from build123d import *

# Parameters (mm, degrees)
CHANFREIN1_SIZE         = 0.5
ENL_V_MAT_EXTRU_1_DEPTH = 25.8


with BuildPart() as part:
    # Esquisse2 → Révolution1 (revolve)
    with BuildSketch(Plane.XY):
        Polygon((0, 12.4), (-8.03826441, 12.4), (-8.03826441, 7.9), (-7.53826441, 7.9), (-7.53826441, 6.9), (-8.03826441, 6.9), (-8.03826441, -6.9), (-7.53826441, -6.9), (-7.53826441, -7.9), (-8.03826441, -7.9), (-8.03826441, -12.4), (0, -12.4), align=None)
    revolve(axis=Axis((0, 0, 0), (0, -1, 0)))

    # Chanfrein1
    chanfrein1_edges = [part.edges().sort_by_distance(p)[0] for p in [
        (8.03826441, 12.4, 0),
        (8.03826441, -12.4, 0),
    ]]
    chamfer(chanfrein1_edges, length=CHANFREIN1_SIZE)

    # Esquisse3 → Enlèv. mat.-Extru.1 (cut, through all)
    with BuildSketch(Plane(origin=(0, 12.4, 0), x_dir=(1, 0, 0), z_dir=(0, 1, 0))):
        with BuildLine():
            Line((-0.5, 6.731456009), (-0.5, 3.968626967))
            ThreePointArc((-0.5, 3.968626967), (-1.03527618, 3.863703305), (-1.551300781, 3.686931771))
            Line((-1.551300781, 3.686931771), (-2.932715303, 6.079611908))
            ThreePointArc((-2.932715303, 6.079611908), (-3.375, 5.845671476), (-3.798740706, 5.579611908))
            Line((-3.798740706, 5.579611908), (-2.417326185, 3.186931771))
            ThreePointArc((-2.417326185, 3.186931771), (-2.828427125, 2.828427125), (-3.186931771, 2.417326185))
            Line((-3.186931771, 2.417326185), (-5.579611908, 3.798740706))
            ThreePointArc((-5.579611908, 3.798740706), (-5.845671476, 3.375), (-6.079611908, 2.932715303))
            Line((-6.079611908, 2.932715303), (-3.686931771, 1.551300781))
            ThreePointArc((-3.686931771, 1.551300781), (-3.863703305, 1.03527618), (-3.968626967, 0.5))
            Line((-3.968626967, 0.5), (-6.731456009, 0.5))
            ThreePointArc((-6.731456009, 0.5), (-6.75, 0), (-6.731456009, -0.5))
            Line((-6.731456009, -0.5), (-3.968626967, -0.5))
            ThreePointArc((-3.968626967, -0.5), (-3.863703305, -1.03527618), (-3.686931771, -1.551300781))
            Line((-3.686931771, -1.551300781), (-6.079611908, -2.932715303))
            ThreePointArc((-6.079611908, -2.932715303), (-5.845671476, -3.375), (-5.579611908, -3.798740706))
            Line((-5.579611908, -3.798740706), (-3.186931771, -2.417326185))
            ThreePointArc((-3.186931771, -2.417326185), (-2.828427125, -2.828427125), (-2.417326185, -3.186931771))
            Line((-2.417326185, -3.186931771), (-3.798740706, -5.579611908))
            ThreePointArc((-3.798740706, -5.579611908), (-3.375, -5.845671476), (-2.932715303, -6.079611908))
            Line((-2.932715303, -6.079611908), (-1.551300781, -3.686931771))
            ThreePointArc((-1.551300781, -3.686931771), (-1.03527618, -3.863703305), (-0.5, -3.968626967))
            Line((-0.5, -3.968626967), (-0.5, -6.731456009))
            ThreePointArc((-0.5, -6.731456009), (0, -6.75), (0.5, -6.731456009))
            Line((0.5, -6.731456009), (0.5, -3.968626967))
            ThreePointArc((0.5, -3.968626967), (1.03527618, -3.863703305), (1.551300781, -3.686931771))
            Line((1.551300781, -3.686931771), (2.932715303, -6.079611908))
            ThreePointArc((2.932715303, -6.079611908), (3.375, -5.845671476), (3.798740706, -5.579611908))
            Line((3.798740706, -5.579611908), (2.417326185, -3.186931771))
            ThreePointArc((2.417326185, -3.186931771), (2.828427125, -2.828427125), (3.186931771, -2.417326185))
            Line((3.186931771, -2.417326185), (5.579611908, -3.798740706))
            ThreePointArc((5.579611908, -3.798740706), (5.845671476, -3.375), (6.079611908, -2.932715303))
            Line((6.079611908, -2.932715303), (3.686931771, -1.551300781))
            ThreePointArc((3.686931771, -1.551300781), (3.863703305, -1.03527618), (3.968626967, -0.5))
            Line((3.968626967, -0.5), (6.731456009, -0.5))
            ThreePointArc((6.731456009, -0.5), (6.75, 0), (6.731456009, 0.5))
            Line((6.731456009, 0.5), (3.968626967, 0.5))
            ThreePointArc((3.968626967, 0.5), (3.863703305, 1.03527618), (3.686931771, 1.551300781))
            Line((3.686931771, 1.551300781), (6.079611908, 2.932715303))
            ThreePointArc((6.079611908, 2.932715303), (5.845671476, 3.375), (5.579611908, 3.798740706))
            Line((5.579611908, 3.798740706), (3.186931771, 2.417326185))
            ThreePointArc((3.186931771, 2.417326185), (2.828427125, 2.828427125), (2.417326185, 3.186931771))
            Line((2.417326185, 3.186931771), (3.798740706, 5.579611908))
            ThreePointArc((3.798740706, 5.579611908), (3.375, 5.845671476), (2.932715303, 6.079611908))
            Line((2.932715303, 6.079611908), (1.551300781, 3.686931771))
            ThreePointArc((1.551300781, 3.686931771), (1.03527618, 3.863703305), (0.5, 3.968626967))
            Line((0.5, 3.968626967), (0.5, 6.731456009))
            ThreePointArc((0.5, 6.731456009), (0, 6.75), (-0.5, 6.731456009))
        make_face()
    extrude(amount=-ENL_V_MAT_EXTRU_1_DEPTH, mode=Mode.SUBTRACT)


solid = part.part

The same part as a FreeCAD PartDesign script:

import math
import FreeCAD as App
import Part
import Sketcher
from FreeCAD import Vector
Q = App.Units.Quantity


def edges_at(feature, points):
    """Names of the edges that pass closest to the given points."""
    edges = feature.Shape.Edges
    near = lambda p: min(range(len(edges)), key=lambda i: edges[i].distToShape(Part.Vertex(*p))[0])
    return sorted({f"Edge{near(p) + 1}" for p in points})

doc = App.newDocument("Part")
body = doc.addObject("PartDesign::Body", "Body")

sketch1 = body.newObject("Sketcher::SketchObject", "Sketch")
sketch1.AttachmentSupport = (doc.getObject("XY_Plane"), [""])
sketch1.MapMode = "FlatFace"
sketch1.addGeometry([
    Part.LineSegment(Vector(0, 12.4, 0), Vector(-8, 12.4, 0)),
    Part.LineSegment(Vector(-8, 12.4, 0), Vector(-8, 7.9, 0)),
    Part.LineSegment(Vector(-8, 7.9, 0), Vector(-7.5, 7.9, 0)),
    Part.LineSegment(Vector(-7.5, 7.9, 0), Vector(-7.5, 6.9, 0)),
    Part.LineSegment(Vector(-7.5, 6.9, 0), Vector(-8, 6.9, 0)),
    Part.LineSegment(Vector(-8, 6.9, 0), Vector(-8, -6.9, 0)),
    Part.LineSegment(Vector(-8, -6.9, 0), Vector(-7.5, -6.9, 0)),
    Part.LineSegment(Vector(-7.5, -6.9, 0), Vector(-7.5, -7.9, 0)),
    Part.LineSegment(Vector(-7.5, -7.9, 0), Vector(-8, -7.9, 0)),
    Part.LineSegment(Vector(-8, -7.9, 0), Vector(-8, -12.4, 0)),
    Part.LineSegment(Vector(-8, -12.4, 0), Vector(0, -12.4, 0)),
    Part.LineSegment(Vector(0, -12.4, 0), Vector(0, 12.4, 0)),
], False)
sketch1.addConstraint([
    Sketcher.Constraint("Coincident", 0, 2, 1, 1),
    Sketcher.Constraint("Coincident", 1, 2, 2, 1),
    Sketcher.Constraint("Coincident", 2, 2, 3, 1),
    Sketcher.Constraint("Coincident", 3, 2, 4, 1),
    Sketcher.Constraint("Coincident", 4, 2, 5, 1),
    Sketcher.Constraint("Coincident", 5, 2, 6, 1),
    Sketcher.Constraint("Coincident", 6, 2, 7, 1),
    Sketcher.Constraint("Coincident", 7, 2, 8, 1),
    Sketcher.Constraint("Coincident", 8, 2, 9, 1),
    Sketcher.Constraint("Coincident", 9, 2, 10, 1),
    Sketcher.Constraint("Coincident", 10, 2, 11, 1),
    Sketcher.Constraint("Coincident", 11, 2, 0, 1),
    Sketcher.Constraint("Horizontal", 0),
    Sketcher.Constraint("Vertical", 1),
    Sketcher.Constraint("Horizontal", 2),
    Sketcher.Constraint("Vertical", 3),
    Sketcher.Constraint("Horizontal", 4),
    Sketcher.Constraint("Vertical", 5),
    Sketcher.Constraint("Horizontal", 6),
    Sketcher.Constraint("Vertical", 7),
    Sketcher.Constraint("Horizontal", 8),
    Sketcher.Constraint("Vertical", 9),
    Sketcher.Constraint("Horizontal", 10),
    Sketcher.Constraint("Vertical", 11),
    Sketcher.Constraint("Symmetric", 10, 2, 11, 2, -1, 1),
    Sketcher.Constraint("Symmetric", 3, 2, 6, 2, -1),
    Sketcher.Constraint("Symmetric", 1, 2, 8, 2, -1),
    Sketcher.Constraint("Vertical", 1, 2, 4, 2),
    Sketcher.Constraint("DistanceY", 3, 2, 3, 1, Q("1 mm")),
    Sketcher.Constraint("DistanceX", 2, 1, 2, 2, Q("0.5 mm")),
    Sketcher.Constraint("DistanceY", 1, 2, 1, 1, Q("4.5 mm")),
    Sketcher.Constraint("DistanceY", 5, 2, 5, 1, Q("13.8 mm")),
    Sketcher.Constraint("DistanceX", 0, 2, 0, 1, Q("8.038264 mm")),
])
revolution = body.newObject("PartDesign::Revolution", "Revolution")
revolution.Profile = sketch1
revolution.ReferenceAxis = (sketch1, ["V_Axis"])
revolution.Angle = 360
doc.recompute()

chamfer = body.newObject("PartDesign::Chamfer", "Chamfer")
chamfer.Base = (revolution, edges_at(revolution, [(8.038, 12.4, 0), (8.038, -12.4, 0)]))
chamfer.Size = 0.5

sketch2 = body.newObject("Sketcher::SketchObject", "Sketch001")
sketch2.AttachmentSupport = (doc.getObject("XZ_Plane"), [""])
sketch2.MapMode = "FlatFace"
sketch2.AttachmentOffset = App.Placement(Vector(0, 0, -12.4), App.Rotation())
sketch2.addGeometry([
    Part.LineSegment(Vector(-0.5, -6.7, 0), Vector(-0.5, -4, 0)),
    Part.ArcOfCircle(Part.Circle(Vector(0, 0, 0), Vector(0, 0, 1), 4), math.radians(-112.82), math.radians(-97.18)),
    Part.LineSegment(Vector(-1.6, -3.7, 0), Vector(-2.9, -6.1, 0)),
    Part.ArcOfCircle(Part.Circle(Vector(0, 0, 0), Vector(0, 0, 1), 6.7), math.radians(-124.25), math.radians(-115.75)),
    Part.LineSegment(Vector(-3.8, -5.6, 0), Vector(-2.4, -3.2, 0)),
    Part.ArcOfCircle(Part.Circle(Vector(0, 0, 0), Vector(0, 0, 1), 4), math.radians(-142.82), math.radians(-127.18)),
    Part.LineSegment(Vector(-3.2, -2.4, 0), Vector(-5.6, -3.8, 0)),
    Part.ArcOfCircle(Part.Circle(Vector(0, 0, 0), Vector(0, 0, 1), 6.7), math.radians(-154.25), math.radians(-145.75)),
    Part.LineSegment(Vector(-6.1, -2.9, 0), Vector(-3.7, -1.6, 0)),
    Part.ArcOfCircle(Part.Circle(Vector(0, 0, 0), Vector(0, 0, 1), 4), math.radians(-172.82), math.radians(-157.18)),
    Part.LineSegment(Vector(-4, -0.5, 0), Vector(-6.7, -0.5, 0)),
    Part.ArcOfCircle(Part.Circle(Vector(0, 0, 0), Vector(0, 0, 1), 6.8), math.radians(175.75), math.radians(184.25)),
    Part.LineSegment(Vector(-6.7, 0.5, 0), Vector(-4, 0.5, 0)),
    Part.ArcOfCircle(Part.Circle(Vector(0, 0, 0), Vector(0, 0, 1), 4), math.radians(157.18), math.radians(172.82)),
    Part.LineSegment(Vector(-3.7, 1.6, 0), Vector(-6.1, 2.9, 0)),
    Part.ArcOfCircle(Part.Circle(Vector(0, 0, 0), Vector(0, 0, 1), 6.7), math.radians(145.75), math.radians(154.25)),
    Part.LineSegment(Vector(-5.6, 3.8, 0), Vector(-3.2, 2.4, 0)),
    Part.ArcOfCircle(Part.Circle(Vector(0, 0, 0), Vector(0, 0, 1), 4), math.radians(127.18), math.radians(142.82)),
    Part.LineSegment(Vector(-2.4, 3.2, 0), Vector(-3.8, 5.6, 0)),
    Part.ArcOfCircle(Part.Circle(Vector(0, 0, 0), Vector(0, 0, 1), 6.7), math.radians(115.75), math.radians(124.25)),
    Part.LineSegment(Vector(-2.9, 6.1, 0), Vector(-1.6, 3.7, 0)),
    Part.ArcOfCircle(Part.Circle(Vector(0, 0, 0), Vector(0, 0, 1), 4), math.radians(97.18), math.radians(112.82)),
    Part.LineSegment(Vector(-0.5, 4, 0), Vector(-0.5, 6.7, 0)),
    Part.ArcOfCircle(Part.Circle(Vector(0, 0, 0), Vector(0, 0, 1), 6.8), math.radians(85.75), math.radians(94.25)),
    Part.LineSegment(Vector(0.5, 6.7, 0), Vector(0.5, 4, 0)),
    Part.ArcOfCircle(Part.Circle(Vector(0, 0, 0), Vector(0, 0, 1), 4), math.radians(67.18), math.radians(82.82)),
    Part.LineSegment(Vector(1.6, 3.7, 0), Vector(2.9, 6.1, 0)),
    Part.ArcOfCircle(Part.Circle(Vector(0, 0, 0), Vector(0, 0, 1), 6.7), math.radians(55.75), math.radians(64.25)),
    Part.LineSegment(Vector(3.8, 5.6, 0), Vector(2.4, 3.2, 0)),
    Part.ArcOfCircle(Part.Circle(Vector(0, 0, 0), Vector(0, 0, 1), 4), math.radians(37.18), math.radians(52.82)),
    Part.LineSegment(Vector(3.2, 2.4, 0), Vector(5.6, 3.8, 0)),
    Part.ArcOfCircle(Part.Circle(Vector(0, 0, 0), Vector(0, 0, 1), 6.7), math.radians(25.75), math.radians(34.25)),
    Part.LineSegment(Vector(6.1, 2.9, 0), Vector(3.7, 1.6, 0)),
    Part.ArcOfCircle(Part.Circle(Vector(0, 0, 0), Vector(0, 0, 1), 4), math.radians(7.18), math.radians(22.82)),
    Part.LineSegment(Vector(4, 0.5, 0), Vector(6.7, 0.5, 0)),
    Part.ArcOfCircle(Part.Circle(Vector(0, 0, 0), Vector(0, 0, 1), 6.8), math.radians(-4.25), math.radians(4.25)),
    Part.LineSegment(Vector(6.7, -0.5, 0), Vector(4, -0.5, 0)),
    Part.ArcOfCircle(Part.Circle(Vector(0, 0, 0), Vector(0, 0, 1), 4), math.radians(-22.82), math.radians(-7.18)),
    Part.LineSegment(Vector(3.7, -1.6, 0), Vector(6.1, -2.9, 0)),
    Part.ArcOfCircle(Part.Circle(Vector(0, 0, 0), Vector(0, 0, 1), 6.7), math.radians(-34.25), math.radians(-25.75)),
    Part.LineSegment(Vector(5.6, -3.8, 0), Vector(3.2, -2.4, 0)),
    Part.ArcOfCircle(Part.Circle(Vector(0, 0, 0), Vector(0, 0, 1), 4), math.radians(-52.82), math.radians(-37.18)),
    Part.LineSegment(Vector(2.4, -3.2, 0), Vector(3.8, -5.6, 0)),
    Part.ArcOfCircle(Part.Circle(Vector(0, 0, 0), Vector(0, 0, 1), 6.7), math.radians(-64.25), math.radians(-55.75)),
    Part.LineSegment(Vector(2.9, -6.1, 0), Vector(1.6, -3.7, 0)),
    Part.ArcOfCircle(Part.Circle(Vector(0, 0, 0), Vector(0, 0, 1), 4), math.radians(-82.82), math.radians(-67.18)),
    Part.LineSegment(Vector(0.5, -4, 0), Vector(0.5, -6.7, 0)),
    Part.ArcOfCircle(Part.Circle(Vector(0, 0, 0), Vector(0, 0, 1), 6.8), math.radians(-94.25), math.radians(-85.75)),
], False)
sketch2.addConstraint([
    Sketcher.Constraint("Coincident", 0, 2, 1, 2),
    Sketcher.Constraint("Coincident", 1, 1, 2, 1),
    Sketcher.Constraint("Coincident", 2, 2, 3, 2),
    Sketcher.Constraint("Coincident", 3, 1, 4, 1),
    Sketcher.Constraint("Coincident", 4, 2, 5, 2),
    Sketcher.Constraint("Coincident", 5, 1, 6, 1),
    Sketcher.Constraint("Coincident", 6, 2, 7, 2),
    Sketcher.Constraint("Coincident", 7, 1, 8, 1),
    Sketcher.Constraint("Coincident", 8, 2, 9, 2),
    Sketcher.Constraint("Coincident", 9, 1, 10, 1),
    Sketcher.Constraint("Coincident", 10, 2, 11, 2),
    Sketcher.Constraint("Coincident", 11, 1, 12, 1),
    Sketcher.Constraint("Coincident", 12, 2, 13, 2),
    Sketcher.Constraint("Coincident", 13, 1, 14, 1),
    Sketcher.Constraint("Coincident", 14, 2, 15, 2),
    Sketcher.Constraint("Coincident", 15, 1, 16, 1),
    Sketcher.Constraint("Coincident", 16, 2, 17, 2),
    Sketcher.Constraint("Coincident", 17, 1, 18, 1),
    Sketcher.Constraint("Coincident", 18, 2, 19, 2),
    Sketcher.Constraint("Coincident", 19, 1, 20, 1),
    Sketcher.Constraint("Coincident", 20, 2, 21, 2),
    Sketcher.Constraint("Coincident", 21, 1, 22, 1),
    Sketcher.Constraint("Coincident", 22, 2, 23, 2),
    Sketcher.Constraint("Coincident", 23, 1, 24, 1),
    Sketcher.Constraint("Coincident", 24, 2, 25, 2),
    Sketcher.Constraint("Coincident", 25, 1, 26, 1),
    Sketcher.Constraint("Coincident", 26, 2, 27, 2),
    Sketcher.Constraint("Coincident", 27, 1, 28, 1),
    Sketcher.Constraint("Coincident", 28, 2, 29, 2),
    Sketcher.Constraint("Coincident", 29, 1, 30, 1),
    Sketcher.Constraint("Coincident", 30, 2, 31, 2),
    Sketcher.Constraint("Coincident", 31, 1, 32, 1),
    Sketcher.Constraint("Coincident", 32, 2, 33, 2),
    Sketcher.Constraint("Coincident", 33, 1, 34, 1),
    Sketcher.Constraint("Coincident", 34, 2, 35, 2),
    Sketcher.Constraint("Coincident", 35, 1, 36, 1),
    Sketcher.Constraint("Coincident", 36, 2, 37, 2),
    Sketcher.Constraint("Coincident", 37, 1, 38, 1),
    Sketcher.Constraint("Coincident", 38, 2, 39, 2),
    Sketcher.Constraint("Coincident", 39, 1, 40, 1),
    Sketcher.Constraint("Coincident", 40, 2, 41, 2),
    Sketcher.Constraint("Coincident", 41, 1, 42, 1),
    Sketcher.Constraint("Coincident", 42, 2, 43, 2),
    Sketcher.Constraint("Coincident", 43, 1, 44, 1),
    Sketcher.Constraint("Coincident", 44, 2, 45, 2),
    Sketcher.Constraint("Coincident", 45, 1, 46, 1),
    Sketcher.Constraint("Coincident", 46, 2, 47, 2),
    Sketcher.Constraint("Coincident", 47, 1, 0, 1),
    Sketcher.Constraint("Vertical", 0),
    Sketcher.Constraint("Horizontal", 10),
    Sketcher.Constraint("Horizontal", 12),
    Sketcher.Constraint("Vertical", 22),
    Sketcher.Constraint("Vertical", 24),
    Sketcher.Constraint("Horizontal", 34),
    Sketcher.Constraint("Horizontal", 36),
    Sketcher.Constraint("Vertical", 46),
    Sketcher.Constraint("Coincident", 1, 3, -1, 1),
    Sketcher.Constraint("Coincident", 3, 3, -1, 1),
    Sketcher.Constraint("Coincident", 5, 3, -1, 1),
    Sketcher.Constraint("Coincident", 7, 3, -1, 1),
    Sketcher.Constraint("Coincident", 9, 3, -1, 1),
    Sketcher.Constraint("Coincident", 11, 3, -1, 1),
    Sketcher.Constraint("Coincident", 13, 3, -1, 1),
    Sketcher.Constraint("Coincident", 15, 3, -1, 1),
    Sketcher.Constraint("Coincident", 17, 3, -1, 1),
    Sketcher.Constraint("Coincident", 19, 3, -1, 1),
    Sketcher.Constraint("Coincident", 21, 3, -1, 1),
    Sketcher.Constraint("Coincident", 23, 3, -1, 1),
    Sketcher.Constraint("Coincident", 25, 3, -1, 1),
    Sketcher.Constraint("Coincident", 27, 3, -1, 1),
    Sketcher.Constraint("Coincident", 29, 3, -1, 1),
    Sketcher.Constraint("Coincident", 31, 3, -1, 1),
    Sketcher.Constraint("Coincident", 33, 3, -1, 1),
    Sketcher.Constraint("Coincident", 35, 3, -1, 1),
    Sketcher.Constraint("Coincident", 37, 3, -1, 1),
    Sketcher.Constraint("Coincident", 39, 3, -1, 1),
    Sketcher.Constraint("Coincident", 41, 3, -1, 1),
    Sketcher.Constraint("Coincident", 43, 3, -1, 1),
    Sketcher.Constraint("Coincident", 45, 3, -1, 1),
    Sketcher.Constraint("Coincident", 47, 3, -1, 1),
    Sketcher.Constraint("Equal", 1, 5),
    Sketcher.Constraint("Equal", 3, 7),
    Sketcher.Constraint("Equal", 5, 9),
    Sketcher.Constraint("Equal", 7, 11),
    Sketcher.Constraint("Equal", 9, 13),
    Sketcher.Constraint("Equal", 11, 15),
    Sketcher.Constraint("Equal", 13, 17),
    Sketcher.Constraint("Equal", 15, 19),
    Sketcher.Constraint("Equal", 17, 21),
    Sketcher.Constraint("Equal", 19, 23),
    Sketcher.Constraint("Equal", 21, 25),
    Sketcher.Constraint("Equal", 23, 27),
    Sketcher.Constraint("Equal", 25, 29),
    Sketcher.Constraint("Equal", 27, 31),
    Sketcher.Constraint("Equal", 29, 33),
    Sketcher.Constraint("Equal", 31, 35),
    Sketcher.Constraint("Equal", 33, 37),
    Sketcher.Constraint("Equal", 35, 39),
    Sketcher.Constraint("Equal", 37, 41),
    Sketcher.Constraint("Equal", 39, 43),
    Sketcher.Constraint("Equal", 41, 45),
    Sketcher.Constraint("Equal", 43, 47),
    Sketcher.Constraint("Parallel", 2, 4),
    Sketcher.Constraint("Parallel", 6, 8),
    Sketcher.Constraint("Perpendicular", 4, 14),
    Sketcher.Constraint("Parallel", 14, 16),
    Sketcher.Constraint("Perpendicular", 8, 18),
    Sketcher.Constraint("Parallel", 18, 20),
    Sketcher.Constraint("Perpendicular", 16, 26),
    Sketcher.Constraint("Parallel", 26, 28),
    Sketcher.Constraint("Perpendicular", 20, 30),
    Sketcher.Constraint("Parallel", 30, 32),
    Sketcher.Constraint("Perpendicular", 28, 38),
    Sketcher.Constraint("Parallel", 38, 40),
    Sketcher.Constraint("Perpendicular", 32, 42),
    Sketcher.Constraint("Parallel", 42, 44),
    Sketcher.Constraint("Horizontal", 22, 2, 23, 1),
    Sketcher.Constraint("Horizontal", 20, 2, 25, 1),
    Sketcher.Constraint("Horizontal", 19, 1, 26, 2),
    Sketcher.Constraint("Horizontal", 18, 2, 27, 1),
    Sketcher.Constraint("Horizontal", 16, 2, 29, 1),
    Sketcher.Constraint("Horizontal", 14, 2, 31, 1),
    Sketcher.Constraint("Horizontal", 12, 2, 33, 1),
    Sketcher.Constraint("Horizontal", 10, 2, 35, 1),
    Sketcher.Constraint("Horizontal", 8, 2, 37, 1),
    Sketcher.Constraint("Horizontal", 6, 2, 39, 1),
    Sketcher.Constraint("Horizontal", 4, 2, 41, 1),
    Sketcher.Constraint("Horizontal", 2, 2, 43, 1),
    Sketcher.Constraint("Horizontal", 0, 2, 45, 1),
    Sketcher.Constraint("Vertical", 10, 2, 11, 1),
    Sketcher.Constraint("Vertical", 8, 2, 13, 1),
    Sketcher.Constraint("Vertical", 6, 2, 15, 1),
    Sketcher.Constraint("Vertical", 4, 2, 17, 1),
    Sketcher.Constraint("Vertical", 2, 2, 19, 1),
    Sketcher.Constraint("Vertical", 0, 2, 21, 1),
    Sketcher.Constraint("Equal", 36, 0),
    Sketcher.Constraint("Equal", 2, 4),
    Sketcher.Constraint("Equal", 4, 6),
    Sketcher.Constraint("Equal", 6, 8),
    Sketcher.Constraint("Radius", 1, Q("4 mm")),
    Sketcher.Constraint("Angle", 2, Q("-120 deg")),
    Sketcher.Constraint("Radius", 3, Q("6.75 mm")),
    Sketcher.Constraint("DistanceX", 0, 2, -1, 1, Q("0.5 mm")),
    Sketcher.Constraint("DistanceX", 1, 1, -1, 1, Q("1.551301 mm")),
])
pocket1 = body.newObject("PartDesign::Pocket", "Pocket")
pocket1.Profile = sketch2
pocket1.Type = "ThroughAll"
pocket1.Reversed = True

doc.recompute()
